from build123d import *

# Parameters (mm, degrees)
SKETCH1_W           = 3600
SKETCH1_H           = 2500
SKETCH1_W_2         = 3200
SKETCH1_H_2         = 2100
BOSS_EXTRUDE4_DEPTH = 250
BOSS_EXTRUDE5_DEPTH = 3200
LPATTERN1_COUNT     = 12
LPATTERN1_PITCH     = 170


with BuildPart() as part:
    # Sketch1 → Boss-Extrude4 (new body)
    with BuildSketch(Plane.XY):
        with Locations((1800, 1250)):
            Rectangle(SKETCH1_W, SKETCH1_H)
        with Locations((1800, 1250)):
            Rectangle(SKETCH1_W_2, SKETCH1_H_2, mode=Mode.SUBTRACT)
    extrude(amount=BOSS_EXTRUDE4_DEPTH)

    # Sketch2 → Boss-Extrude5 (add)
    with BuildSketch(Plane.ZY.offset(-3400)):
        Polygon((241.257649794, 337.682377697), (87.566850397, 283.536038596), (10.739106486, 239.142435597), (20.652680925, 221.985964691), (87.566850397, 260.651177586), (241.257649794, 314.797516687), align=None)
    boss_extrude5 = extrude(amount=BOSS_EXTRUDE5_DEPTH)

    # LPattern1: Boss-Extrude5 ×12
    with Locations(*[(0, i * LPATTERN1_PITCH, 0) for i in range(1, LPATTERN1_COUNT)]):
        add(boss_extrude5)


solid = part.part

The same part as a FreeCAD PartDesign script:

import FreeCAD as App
import Part
import Sketcher
from FreeCAD import Vector


def add_polygon(sketch, points):
    """Adds a closed chain of lines whose ends are joined by coincident constraints."""
    first, n = sketch.GeometryCount, len(points)
    for a, b in zip(points, points[1:] + points[:1]):
        sketch.addGeometry(Part.LineSegment(App.Vector(*a, 0), App.Vector(*b, 0)), False)
    for i in range(n):
        sketch.addConstraint(Sketcher.Constraint("Coincident", first + i, 2, first + (i + 1) % n, 1))

doc = App.newDocument("Part")
body = doc.addObject("PartDesign::Body", "Body")

# Sketch on XY plane
sketch1 = body.newObject("Sketcher::SketchObject", "Sketch")
sketch1.AttachmentSupport = (doc.getObject("XY_Plane"), [""])
sketch1.MapMode = "FlatFace"
add_polygon(sketch1, [(0, 2500), (0, 0), (3600, 0), (3600, 2500)])  # lines 0-3
add_polygon(sketch1, [(3400, 200), (200, 200), (200, 2300), (3400, 2300)])  # lines 4-7
sketch1.addConstraint([
    Sketcher.Constraint("Vertical", 0),
    Sketcher.Constraint("Horizontal", 1),
    Sketcher.Constraint("Vertical", 2),
    Sketcher.Constraint("Horizontal", 3),
    Sketcher.Constraint("Horizontal", 4),
    Sketcher.Constraint("Vertical", 5),
    Sketcher.Constraint("Horizontal", 6),
    Sketcher.Constraint("Vertical", 7),
    Sketcher.Constraint("Coincident", 0, 2, -1, 1),
    Sketcher.Constraint("DistanceX", 1, 1, 1, 2, 3600.0),
    Sketcher.Constraint("DistanceX", 4, 2, 4, 1, 3200.0),
    Sketcher.Constraint("DistanceY", 0, 2, 0, 1, 2500.0),
    Sketcher.Constraint("DistanceY", 5, 1, 5, 2, 2100.0),
    Sketcher.Constraint("DistanceX", -1, 1, 4, 2, 200.0),
    Sketcher.Constraint("DistanceY", -1, 1, 4, 2, 200.0),
])
pad1 = body.newObject("PartDesign::Pad", "Pad")
pad1.Profile = sketch1
pad1.Length = 250

# Sketch on YZ plane
sketch2 = body.newObject("Sketcher::SketchObject", "Sketch001")
sketch2.AttachmentSupport = (doc.getObject("YZ_Plane"), [""])
sketch2.MapMode = "FlatFace"
sketch2.AttachmentOffset = App.Placement(Vector(0, 0, 3400), App.Rotation())
add_polygon(sketch2, [(338, 241), (284, 88), (239, 11), (222, 21), (261, 88), (315, 241)])  # lines 0-5
sketch2.addConstraint([
    Sketcher.Constraint("Horizontal", 5),
    Sketcher.Constraint("Perpendicular", 1, 2),
    Sketcher.Constraint("Perpendicular", 2, 3),
    Sketcher.Constraint("Parallel", 0, 4),
    Sketcher.Constraint("Horizontal", 0, 2, 3, 2),
    Sketcher.Constraint("DistanceX", 5, 1, 5, 2, 22.884861),
    Sketcher.Constraint("DistanceY", 0, 2, 4, 2, 153.690799),
    Sketcher.Constraint("DistanceX", 3, 2, 5, 2, 77.0312),
    Sketcher.Constraint("Distance", 2, 19.814728),
    Sketcher.Constraint("DistanceX", -1, 1, 0, 2, 283.536039),
    Sketcher.Constraint("DistanceY", -1, 1, 0, 2, 87.56685),
    Sketcher.Constraint("DistanceY", -1, 1, 2, 2, 20.652681),
])
pad2 = body.newObject("PartDesign::Pad", "Pad001")
pad2.Profile = sketch2
pad2.Length = 3200
pad2.Reversed = True
doc.recompute()

linearpattern = body.newObject("PartDesign::LinearPattern", "LinearPattern")
linearpattern.Originals = [pad2]
linearpattern.Direction = (doc.getObject("Y_Axis"), [""])
linearpattern.Mode = "offset"
linearpattern.Offset = 170
linearpattern.Occurrences = 12
body.Tip = linearpattern

doc.recompute()
